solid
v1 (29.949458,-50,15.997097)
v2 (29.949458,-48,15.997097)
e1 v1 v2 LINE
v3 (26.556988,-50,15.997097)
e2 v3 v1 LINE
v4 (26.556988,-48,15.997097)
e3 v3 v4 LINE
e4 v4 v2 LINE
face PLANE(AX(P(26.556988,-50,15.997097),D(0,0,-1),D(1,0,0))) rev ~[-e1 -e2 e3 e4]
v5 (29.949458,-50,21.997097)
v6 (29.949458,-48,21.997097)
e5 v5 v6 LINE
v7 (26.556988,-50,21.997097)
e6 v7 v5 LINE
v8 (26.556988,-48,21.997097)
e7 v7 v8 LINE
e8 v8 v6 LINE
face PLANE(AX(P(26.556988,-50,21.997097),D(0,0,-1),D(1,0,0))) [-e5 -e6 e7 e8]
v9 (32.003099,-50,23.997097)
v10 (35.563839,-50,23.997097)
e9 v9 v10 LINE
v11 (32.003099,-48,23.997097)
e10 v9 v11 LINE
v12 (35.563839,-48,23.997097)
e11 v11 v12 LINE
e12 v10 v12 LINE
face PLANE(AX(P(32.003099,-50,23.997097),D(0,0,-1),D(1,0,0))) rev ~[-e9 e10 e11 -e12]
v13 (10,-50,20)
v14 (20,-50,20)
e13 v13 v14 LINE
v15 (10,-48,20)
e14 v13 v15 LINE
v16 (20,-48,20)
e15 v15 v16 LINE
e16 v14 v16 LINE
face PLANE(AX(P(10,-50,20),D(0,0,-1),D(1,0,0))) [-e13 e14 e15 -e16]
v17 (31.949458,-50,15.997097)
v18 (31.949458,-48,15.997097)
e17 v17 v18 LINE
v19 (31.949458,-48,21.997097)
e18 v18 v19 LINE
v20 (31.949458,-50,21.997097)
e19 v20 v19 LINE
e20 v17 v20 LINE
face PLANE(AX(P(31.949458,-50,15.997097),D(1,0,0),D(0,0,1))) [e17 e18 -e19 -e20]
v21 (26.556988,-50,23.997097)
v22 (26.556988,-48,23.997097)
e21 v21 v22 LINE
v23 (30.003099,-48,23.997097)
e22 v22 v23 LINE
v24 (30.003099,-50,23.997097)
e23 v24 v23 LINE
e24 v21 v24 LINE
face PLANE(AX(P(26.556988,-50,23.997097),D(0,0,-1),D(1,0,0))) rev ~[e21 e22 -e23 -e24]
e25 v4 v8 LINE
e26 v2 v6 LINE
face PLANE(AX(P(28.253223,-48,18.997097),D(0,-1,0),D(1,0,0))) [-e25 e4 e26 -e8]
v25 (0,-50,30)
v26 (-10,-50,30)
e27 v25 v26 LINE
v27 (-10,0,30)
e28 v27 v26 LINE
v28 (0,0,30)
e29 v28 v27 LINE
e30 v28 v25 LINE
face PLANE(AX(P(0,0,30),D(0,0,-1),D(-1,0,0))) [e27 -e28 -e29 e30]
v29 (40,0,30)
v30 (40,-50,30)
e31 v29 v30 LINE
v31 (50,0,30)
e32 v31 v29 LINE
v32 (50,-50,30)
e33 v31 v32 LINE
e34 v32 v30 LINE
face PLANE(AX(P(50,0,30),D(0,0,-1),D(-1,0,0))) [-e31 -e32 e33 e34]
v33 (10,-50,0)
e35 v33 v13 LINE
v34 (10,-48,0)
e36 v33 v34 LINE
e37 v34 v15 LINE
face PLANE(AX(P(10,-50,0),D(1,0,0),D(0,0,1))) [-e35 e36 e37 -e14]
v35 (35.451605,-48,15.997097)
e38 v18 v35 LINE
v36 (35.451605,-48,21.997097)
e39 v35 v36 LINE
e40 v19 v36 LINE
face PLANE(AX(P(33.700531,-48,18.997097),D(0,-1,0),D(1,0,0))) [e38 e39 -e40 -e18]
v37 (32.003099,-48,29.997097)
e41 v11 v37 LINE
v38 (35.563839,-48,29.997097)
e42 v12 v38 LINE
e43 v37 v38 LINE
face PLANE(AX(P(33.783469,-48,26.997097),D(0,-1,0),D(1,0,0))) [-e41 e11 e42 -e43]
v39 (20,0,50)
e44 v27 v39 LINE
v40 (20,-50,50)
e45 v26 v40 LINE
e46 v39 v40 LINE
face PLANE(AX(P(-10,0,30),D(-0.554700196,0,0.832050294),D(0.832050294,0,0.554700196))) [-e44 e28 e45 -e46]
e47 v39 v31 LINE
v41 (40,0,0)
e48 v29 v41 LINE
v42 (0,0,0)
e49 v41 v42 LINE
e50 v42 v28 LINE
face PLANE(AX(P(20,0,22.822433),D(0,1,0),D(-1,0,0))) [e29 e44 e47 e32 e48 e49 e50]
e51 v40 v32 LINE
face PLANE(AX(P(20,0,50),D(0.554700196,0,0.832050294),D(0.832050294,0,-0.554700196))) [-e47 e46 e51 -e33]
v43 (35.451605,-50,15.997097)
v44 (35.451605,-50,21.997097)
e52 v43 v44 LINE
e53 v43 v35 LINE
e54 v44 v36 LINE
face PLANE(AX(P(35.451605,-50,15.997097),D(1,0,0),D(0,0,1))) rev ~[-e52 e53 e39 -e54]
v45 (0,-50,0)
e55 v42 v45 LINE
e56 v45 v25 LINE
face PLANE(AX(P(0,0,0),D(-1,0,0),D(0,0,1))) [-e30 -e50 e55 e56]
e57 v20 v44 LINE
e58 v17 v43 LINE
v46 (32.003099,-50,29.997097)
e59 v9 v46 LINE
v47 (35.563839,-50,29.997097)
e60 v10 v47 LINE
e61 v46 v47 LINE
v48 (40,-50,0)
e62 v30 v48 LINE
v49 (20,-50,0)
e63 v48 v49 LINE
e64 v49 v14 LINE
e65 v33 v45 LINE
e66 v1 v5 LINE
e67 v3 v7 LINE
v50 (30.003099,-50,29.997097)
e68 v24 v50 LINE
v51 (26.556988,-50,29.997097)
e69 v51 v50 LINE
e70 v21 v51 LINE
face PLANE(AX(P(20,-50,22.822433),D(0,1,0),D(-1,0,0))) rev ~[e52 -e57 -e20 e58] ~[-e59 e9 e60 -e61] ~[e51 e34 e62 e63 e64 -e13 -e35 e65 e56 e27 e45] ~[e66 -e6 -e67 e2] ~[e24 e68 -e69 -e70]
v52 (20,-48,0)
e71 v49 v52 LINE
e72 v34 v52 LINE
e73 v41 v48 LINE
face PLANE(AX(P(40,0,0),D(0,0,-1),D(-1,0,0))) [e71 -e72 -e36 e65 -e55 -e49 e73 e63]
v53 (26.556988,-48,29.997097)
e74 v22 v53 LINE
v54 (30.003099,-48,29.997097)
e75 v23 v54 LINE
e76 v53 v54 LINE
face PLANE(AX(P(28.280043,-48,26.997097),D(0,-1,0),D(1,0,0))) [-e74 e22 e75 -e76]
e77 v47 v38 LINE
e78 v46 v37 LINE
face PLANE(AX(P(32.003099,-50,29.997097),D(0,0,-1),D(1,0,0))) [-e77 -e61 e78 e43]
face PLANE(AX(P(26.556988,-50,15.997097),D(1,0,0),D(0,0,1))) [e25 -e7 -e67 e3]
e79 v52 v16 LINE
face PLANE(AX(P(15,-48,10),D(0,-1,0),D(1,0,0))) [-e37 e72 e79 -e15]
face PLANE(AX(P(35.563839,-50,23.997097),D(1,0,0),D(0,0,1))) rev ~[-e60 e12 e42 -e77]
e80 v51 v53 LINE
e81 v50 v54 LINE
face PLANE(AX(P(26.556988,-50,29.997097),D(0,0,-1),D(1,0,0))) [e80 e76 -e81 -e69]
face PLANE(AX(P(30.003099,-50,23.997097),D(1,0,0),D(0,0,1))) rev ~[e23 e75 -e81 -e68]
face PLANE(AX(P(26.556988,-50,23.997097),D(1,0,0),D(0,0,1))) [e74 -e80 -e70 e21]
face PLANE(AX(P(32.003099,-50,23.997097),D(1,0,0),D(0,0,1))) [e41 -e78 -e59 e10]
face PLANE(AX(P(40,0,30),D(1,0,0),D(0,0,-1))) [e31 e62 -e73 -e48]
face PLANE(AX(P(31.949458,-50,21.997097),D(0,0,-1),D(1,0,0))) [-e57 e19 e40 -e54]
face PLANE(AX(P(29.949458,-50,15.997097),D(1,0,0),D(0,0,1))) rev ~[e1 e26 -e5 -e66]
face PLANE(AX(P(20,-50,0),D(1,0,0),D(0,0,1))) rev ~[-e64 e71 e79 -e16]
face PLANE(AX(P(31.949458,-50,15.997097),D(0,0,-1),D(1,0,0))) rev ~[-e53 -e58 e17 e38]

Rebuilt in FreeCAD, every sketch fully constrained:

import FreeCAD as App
import Part
import Sketcher
Q = App.Units.Quantity


def add_polygon(sketch, points):
    """Adds a closed chain of lines whose ends are joined by coincident constraints."""
    first, n = sketch.GeometryCount, len(points)
    for a, b in zip(points, points[1:] + points[:1]):
        sketch.addGeometry(Part.LineSegment(App.Vector(*a, 0), App.Vector(*b, 0)), False)
    for i in range(n):
        sketch.addConstraint(Sketcher.Constraint("Coincident", first + i, 2, first + (i + 1) % n, 1))

doc = App.newDocument("Part")
body = doc.addObject("PartDesign::Body", "Body")

# Sketch on XZ plane
sketch1 = body.newObject("Sketcher::SketchObject", "Sketch")
sketch1.AttachmentSupport = (doc.getObject("XZ_Plane"), [""])
sketch1.MapMode = "FlatFace"
add_polygon(sketch1, [(0, 30), (0, 0), (40, 0), (40, 30), (50, 30), (20, 50), (-10, 30)])  # lines 0-6
sketch1.addConstraint(Sketcher.Constraint("Vertical", 0))
sketch1.addConstraint(Sketcher.Constraint("Horizontal", 1))
sketch1.addConstraint(Sketcher.Constraint("Vertical", 2))
sketch1.addConstraint(Sketcher.Constraint("Horizontal", 3))
sketch1.addConstraint(Sketcher.Constraint("Horizontal", 6))
sketch1.addConstraint(Sketcher.Constraint("Coincident", 0, 2, -1, 1))
sketch1.addConstraint(Sketcher.Constraint("Horizontal", 3, 2, 5, 2))
sketch1.addConstraint(Sketcher.Constraint("Equal", 3, 6))
sketch1.addConstraint(Sketcher.Constraint("Equal", 4, 5))
sketch1.addConstraint(Sketcher.Constraint("DistanceX", 1, 1, 1, 2, Q("40 mm")))
sketch1.addConstraint(Sketcher.Constraint("DistanceX", 3, 1, 3, 2, Q("10 mm")))
sketch1.addConstraint(Sketcher.Constraint("DistanceY", 0, 2, 0, 1, Q("30 mm")))
sketch1.addConstraint(Sketcher.Constraint("DistanceY", -1, 1, 4, 2, Q("50 mm")))
pad1 = body.newObject("PartDesign::Pad", "Pad")
pad1.Profile = sketch1
pad1.Length = 50

# Sketch on XZ plane
sketch2 = body.newObject("Sketcher::SketchObject", "Sketch001")
sketch2.AttachmentSupport = (doc.getObject("XZ_Plane"), [""])
sketch2.MapMode = "FlatFace"
sketch2.AttachmentOffset = App.Placement(App.Vector(0, 0, 50), App.Rotation())
add_polygon(sketch2, [(10, 20), (10, 0), (20, 0), (20, 20)])  # lines 0-3
sketch2.addConstraint(Sketcher.Constraint("Vertical", 0))
sketch2.addConstraint(Sketcher.Constraint("Horizontal", 1))
sketch2.addConstraint(Sketcher.Constraint("Vertical", 2))
sketch2.addConstraint(Sketcher.Constraint("Horizontal", 3))
sketch2.addConstraint(Sketcher.Constraint("PointOnObject", 0, 2, -1))
sketch2.addConstraint(Sketcher.Constraint("DistanceX", 1, 1, 1, 2, Q("10 mm")))
sketch2.addConstraint(Sketcher.Constraint("DistanceY", 0, 2, 0, 1, Q("20 mm")))
sketch2.addConstraint(Sketcher.Constraint("DistanceX", -1, 1, 0, 2, Q("10 mm")))
pocket1 = body.newObject("PartDesign::Pocket", "Pocket")
pocket1.Profile = sketch2
pocket1.Length = 2

# Sketch on XZ plane
sketch3 = body.newObject("Sketcher::SketchObject", "Sketch002")
sketch3.AttachmentSupport = (doc.getObject("XZ_Plane"), [""])
sketch3.MapMode = "FlatFace"
sketch3.AttachmentOffset = App.Placement(App.Vector(0, 0, 50), App.Rotation())
add_polygon(sketch3, [(26.556988, 29.997097), (26.556988, 23.997097), (30.003099, 23.997097), (30.003099, 29.997097)])  # lines 0-3
add_polygon(sketch3, [(32.003099, 29.997097), (32.003099, 23.997097), (35.563839, 23.997097), (35.563839, 29.997097)])  # lines 4-7
add_polygon(sketch3, [(26.556988, 21.997097), (26.556988, 15.997097), (29.949458, 15.997097), (29.949458, 21.997097)])  # lines 8-11
add_polygon(sketch3, [(31.949458, 21.997097), (31.949458, 15.997097), (35.451605, 15.997097), (35.451605, 21.997097)])  # lines 12-15
sketch3.addConstraint(Sketcher.Constraint("Vertical", 0))
sketch3.addConstraint(Sketcher.Constraint("Horizontal", 1))
sketch3.addConstraint(Sketcher.Constraint("Vertical", 2))
sketch3.addConstraint(Sketcher.Constraint("Horizontal", 3))
sketch3.addConstraint(Sketcher.Constraint("Vertical", 4))
sketch3.addConstraint(Sketcher.Constraint("Horizontal", 5))
sketch3.addConstraint(Sketcher.Constraint("Vertical", 6))
sketch3.addConstraint(Sketcher.Constraint("Horizontal", 7))
sketch3.addConstraint(Sketcher.Constraint("Vertical", 8))
sketch3.addConstraint(Sketcher.Constraint("Horizontal", 9))
sketch3.addConstraint(Sketcher.Constraint("Vertical", 10))
sketch3.addConstraint(Sketcher.Constraint("Horizontal", 11))
sketch3.addConstraint(Sketcher.Constraint("Vertical", 12))
sketch3.addConstraint(Sketcher.Constraint("Horizontal", 13))
sketch3.addConstraint(Sketcher.Constraint("Vertical", 14))
sketch3.addConstraint(Sketcher.Constraint("Horizontal", 15))
sketch3.addConstraint(Sketcher.Constraint("Horizontal", 1, 2, 4, 2))
sketch3.addConstraint(Sketcher.Constraint("Horizontal", 3, 2, 6, 2))
sketch3.addConstraint(Sketcher.Constraint("Horizontal", 9, 2, 12, 2))
sketch3.addConstraint(Sketcher.Constraint("Horizontal", 11, 2, 14, 2))
sketch3.addConstraint(Sketcher.Constraint("Vertical", 3, 2, 8, 2))
sketch3.addConstraint(Sketcher.Constraint("Equal", 6, 8))
sketch3.addConstraint(Sketcher.Constraint("DistanceY", 0, 2, 0, 1, Q("6 mm")))
sketch3.addConstraint(Sketcher.Constraint("DistanceX", 1, 2, 4, 2, Q("2 mm")))
sketch3.addConstraint(Sketcher.Constraint("DistanceY", 8, 2, 0, 2, Q("8 mm")))
sketch3.addConstraint(Sketcher.Constraint("DistanceX", 9, 2, 12, 2, Q("2 mm")))
sketch3.addConstraint(Sketcher.Constraint("DistanceX", 1, 1, 1, 2, Q("3.446111 mm")))
sketch3.addConstraint(Sketcher.Constraint("DistanceX", 5, 1, 5, 2, Q("3.56074 mm")))
sketch3.addConstraint(Sketcher.Constraint("DistanceX", 9, 1, 9, 2, Q("3.39247 mm")))
sketch3.addConstraint(Sketcher.Constraint("DistanceX", -1, 1, 1, 2, Q("30.003099 mm")))
sketch3.addConstraint(Sketcher.Constraint("DistanceX", 13, 1, 13, 2, Q("3.502147 mm")))
sketch3.addConstraint(Sketcher.Constraint("DistanceY", -1, 1, 0, 2, Q("23.997097 mm")))
pocket2 = body.newObject("PartDesign::Pocket", "Pocket001")
pocket2.Profile = sketch3
pocket2.Length = 2

doc.recompute()
